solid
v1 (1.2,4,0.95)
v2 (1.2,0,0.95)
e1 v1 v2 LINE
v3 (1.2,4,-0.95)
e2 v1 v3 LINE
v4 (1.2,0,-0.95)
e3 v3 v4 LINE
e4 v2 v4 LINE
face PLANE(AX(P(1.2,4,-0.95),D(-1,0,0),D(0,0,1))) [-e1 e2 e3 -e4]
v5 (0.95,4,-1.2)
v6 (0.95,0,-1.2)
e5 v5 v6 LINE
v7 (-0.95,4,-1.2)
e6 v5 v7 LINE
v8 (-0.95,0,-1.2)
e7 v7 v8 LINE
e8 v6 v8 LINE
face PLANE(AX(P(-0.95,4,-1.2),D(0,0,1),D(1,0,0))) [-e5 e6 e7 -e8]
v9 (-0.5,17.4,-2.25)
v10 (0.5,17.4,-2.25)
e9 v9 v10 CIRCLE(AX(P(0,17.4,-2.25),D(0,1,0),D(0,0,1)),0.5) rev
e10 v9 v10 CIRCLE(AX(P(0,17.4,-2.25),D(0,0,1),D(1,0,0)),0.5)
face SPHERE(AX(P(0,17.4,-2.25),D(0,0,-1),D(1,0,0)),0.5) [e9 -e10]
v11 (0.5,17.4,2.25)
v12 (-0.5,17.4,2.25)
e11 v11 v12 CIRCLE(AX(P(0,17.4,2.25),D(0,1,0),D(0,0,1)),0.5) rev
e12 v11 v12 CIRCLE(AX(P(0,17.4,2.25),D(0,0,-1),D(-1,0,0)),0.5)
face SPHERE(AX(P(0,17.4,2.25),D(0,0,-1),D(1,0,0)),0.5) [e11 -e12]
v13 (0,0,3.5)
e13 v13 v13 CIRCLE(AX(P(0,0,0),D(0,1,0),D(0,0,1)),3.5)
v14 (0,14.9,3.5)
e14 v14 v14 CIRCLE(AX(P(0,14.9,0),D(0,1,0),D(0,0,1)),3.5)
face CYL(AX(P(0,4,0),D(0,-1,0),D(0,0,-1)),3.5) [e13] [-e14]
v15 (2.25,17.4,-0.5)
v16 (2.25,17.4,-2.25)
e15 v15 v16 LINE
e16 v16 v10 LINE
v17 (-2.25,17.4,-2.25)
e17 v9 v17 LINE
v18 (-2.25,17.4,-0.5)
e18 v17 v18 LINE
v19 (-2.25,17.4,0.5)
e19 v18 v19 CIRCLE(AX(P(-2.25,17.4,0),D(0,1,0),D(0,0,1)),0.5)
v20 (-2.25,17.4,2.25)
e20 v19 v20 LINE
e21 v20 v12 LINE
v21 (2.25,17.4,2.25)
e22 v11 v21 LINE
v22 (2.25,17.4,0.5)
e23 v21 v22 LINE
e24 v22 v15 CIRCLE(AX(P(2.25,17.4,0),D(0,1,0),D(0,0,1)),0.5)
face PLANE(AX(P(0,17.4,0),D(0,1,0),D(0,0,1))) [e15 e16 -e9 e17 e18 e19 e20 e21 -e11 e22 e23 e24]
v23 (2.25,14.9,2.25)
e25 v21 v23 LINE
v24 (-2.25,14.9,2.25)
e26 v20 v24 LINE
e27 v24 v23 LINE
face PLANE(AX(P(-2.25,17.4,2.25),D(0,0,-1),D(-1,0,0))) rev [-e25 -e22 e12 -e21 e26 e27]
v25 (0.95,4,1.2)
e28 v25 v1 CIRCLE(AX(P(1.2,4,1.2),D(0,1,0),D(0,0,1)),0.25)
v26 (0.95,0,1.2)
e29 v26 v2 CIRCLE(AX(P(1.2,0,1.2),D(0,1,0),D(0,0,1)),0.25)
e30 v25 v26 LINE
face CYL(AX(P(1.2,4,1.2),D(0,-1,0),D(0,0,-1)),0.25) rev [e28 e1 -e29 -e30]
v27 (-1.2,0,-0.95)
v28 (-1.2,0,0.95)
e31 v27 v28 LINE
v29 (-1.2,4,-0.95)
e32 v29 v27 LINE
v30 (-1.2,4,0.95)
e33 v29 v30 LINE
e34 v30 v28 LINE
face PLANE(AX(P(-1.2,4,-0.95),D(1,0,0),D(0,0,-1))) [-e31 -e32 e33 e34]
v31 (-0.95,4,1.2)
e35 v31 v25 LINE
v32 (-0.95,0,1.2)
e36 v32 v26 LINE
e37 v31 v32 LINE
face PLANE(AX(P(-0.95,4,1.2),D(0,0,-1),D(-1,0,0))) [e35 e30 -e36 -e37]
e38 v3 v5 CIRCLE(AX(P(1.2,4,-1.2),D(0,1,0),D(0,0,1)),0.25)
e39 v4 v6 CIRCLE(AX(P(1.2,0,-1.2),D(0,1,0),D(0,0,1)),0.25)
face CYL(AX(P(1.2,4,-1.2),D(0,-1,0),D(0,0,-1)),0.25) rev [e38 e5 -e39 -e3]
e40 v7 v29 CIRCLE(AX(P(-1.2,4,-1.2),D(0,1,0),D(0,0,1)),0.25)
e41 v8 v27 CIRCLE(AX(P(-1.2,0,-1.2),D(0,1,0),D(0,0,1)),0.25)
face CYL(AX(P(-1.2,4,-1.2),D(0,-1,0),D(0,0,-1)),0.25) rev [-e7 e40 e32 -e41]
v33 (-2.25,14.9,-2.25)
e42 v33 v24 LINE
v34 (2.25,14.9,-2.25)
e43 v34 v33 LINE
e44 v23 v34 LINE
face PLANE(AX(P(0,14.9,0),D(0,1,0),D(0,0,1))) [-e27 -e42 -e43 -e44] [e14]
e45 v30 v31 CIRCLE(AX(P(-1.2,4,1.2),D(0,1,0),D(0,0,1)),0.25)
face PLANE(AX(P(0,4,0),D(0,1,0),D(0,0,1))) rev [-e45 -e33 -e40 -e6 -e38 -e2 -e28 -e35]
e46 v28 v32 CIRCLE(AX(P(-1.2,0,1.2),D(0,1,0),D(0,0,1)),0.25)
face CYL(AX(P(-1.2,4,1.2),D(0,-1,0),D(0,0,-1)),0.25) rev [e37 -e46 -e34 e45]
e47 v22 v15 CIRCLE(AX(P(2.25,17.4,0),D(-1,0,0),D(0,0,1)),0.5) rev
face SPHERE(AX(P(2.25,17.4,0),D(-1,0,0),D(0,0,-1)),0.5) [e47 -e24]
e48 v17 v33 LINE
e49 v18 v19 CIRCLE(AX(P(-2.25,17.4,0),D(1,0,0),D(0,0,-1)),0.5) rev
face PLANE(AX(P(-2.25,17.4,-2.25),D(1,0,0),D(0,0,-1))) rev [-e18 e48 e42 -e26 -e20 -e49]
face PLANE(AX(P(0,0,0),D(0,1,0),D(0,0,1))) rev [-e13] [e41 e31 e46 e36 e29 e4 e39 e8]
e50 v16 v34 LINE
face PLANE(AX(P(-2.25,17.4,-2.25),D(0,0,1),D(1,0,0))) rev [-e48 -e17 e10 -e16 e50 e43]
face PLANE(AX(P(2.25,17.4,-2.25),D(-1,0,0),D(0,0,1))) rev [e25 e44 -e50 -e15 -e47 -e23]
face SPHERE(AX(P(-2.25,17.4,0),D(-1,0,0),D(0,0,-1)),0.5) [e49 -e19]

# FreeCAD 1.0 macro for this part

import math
import FreeCAD as App
import Part
import Sketcher
Q = App.Units.Quantity


def add_polygon(sketch, points):
    """Adds a closed chain of lines whose ends are joined by coincident constraints."""
    first, n = sketch.GeometryCount, len(points)
    for a, b in zip(points, points[1:] + points[:1]):
        sketch.addGeometry(Part.LineSegment(App.Vector(*a, 0), App.Vector(*b, 0)), False)
    for i in range(n):
        sketch.addConstraint(Sketcher.Constraint("Coincident", first + i, 2, first + (i + 1) % n, 1))

doc = App.newDocument("Part")
params = doc.addObject("Spreadsheet::Sheet", "Params")
for row, (alias, value) in enumerate([
    ("sketch1_diameter", "7 mm"),
    ("sketch1_radius", "0.25 mm"),
    ("sketch1_width", "1.9 mm"),
    ("pad1_length", "4 mm"),
    ("sketch2_diameter", "7 mm"),
    ("pad2_length", "10.9 mm"),
    ("sketch3_width", "4.5 mm"),
    ("pad3_length", "2.5 mm"),
    ("sketch4_radius", "0.5 mm"),
    ("revolution_angle", "360 deg"),
    ("sketch5_radius", "0.5 mm"),
    ("revolution2_angle", "360 deg"),
    ("sketch6_diameter", "6.5 mm"),
    ("pocket1_length", "2.5 mm"),
], start=1):
    params.set(f"A{row}", alias)
    params.set(f"B{row}", "=" + value)
    params.setAlias(f"B{row}", alias)

body = doc.addObject("PartDesign::Body", "Body")

sketch1 = doc.addObject("Sketcher::SketchObject", "Sketch")
body.addObject(sketch1)
sketch1.AttachmentSupport = (doc.XZ_Plane, [""])
sketch1.MapMode = "FlatFace"
sketch1.addGeometry(Part.Circle(App.Vector(0, 0, 0), App.Vector(0, 0, 1), 3.5), False)
sketch1.addGeometry(Part.ArcOfCircle(Part.Circle(App.Vector(-1.2, -1.2, 0), App.Vector(0, 0, 1), 0.25), math.radians(90), math.radians(360)), False)
sketch1.addGeometry(Part.LineSegment(App.Vector(-0.95, -1.2, 0), App.Vector(0.95, -1.2, 0)), False)
sketch1.addGeometry(Part.ArcOfCircle(Part.Circle(App.Vector(1.2, -1.2, 0), App.Vector(0, 0, 1), 0.25), math.radians(180), math.radians(450)), False)
sketch1.addGeometry(Part.LineSegment(App.Vector(1.2, -0.95, 0), App.Vector(1.2, 0.95, 0)), False)
sketch1.addGeometry(Part.ArcOfCircle(Part.Circle(App.Vector(1.2, 1.2, 0), App.Vector(0, 0, 1), 0.25), math.radians(-90), math.radians(180)), False)
sketch1.addGeometry(Part.LineSegment(App.Vector(0.95, 1.2, 0), App.Vector(-0.95, 1.2, 0)), False)
sketch1.addGeometry(Part.ArcOfCircle(Part.Circle(App.Vector(-1.2, 1.2, 0), App.Vector(0, 0, 1), 0.25), math.radians(0), math.radians(270)), False)
sketch1.addGeometry(Part.LineSegment(App.Vector(-1.2, 0.95, 0), App.Vector(-1.2, -0.95, 0)), False)
sketch1.addConstraint(Sketcher.Constraint("Coincident", 1, 2, 2, 1))
sketch1.addConstraint(Sketcher.Constraint("Coincident", 2, 2, 3, 1))
sketch1.addConstraint(Sketcher.Constraint("Coincident", 3, 2, 4, 1))
sketch1.addConstraint(Sketcher.Constraint("Coincident", 4, 2, 5, 1))
sketch1.addConstraint(Sketcher.Constraint("Coincident", 5, 2, 6, 1))
sketch1.addConstraint(Sketcher.Constraint("Coincident", 6, 2, 7, 1))
sketch1.addConstraint(Sketcher.Constraint("Coincident", 7, 2, 8, 1))
sketch1.addConstraint(Sketcher.Constraint("Coincident", 8, 2, 1, 1))
sketch1.addConstraint(Sketcher.Constraint("Horizontal", 2))
sketch1.addConstraint(Sketcher.Constraint("Vertical", 4))
sketch1.addConstraint(Sketcher.Constraint("Horizontal", 6))
sketch1.addConstraint(Sketcher.Constraint("Vertical", 8))
sketch1.addConstraint(Sketcher.Constraint("Coincident", 0, 3, -1, 1))
sketch1.addConstraint(Sketcher.Constraint("Equal", 1, 3))
sketch1.addConstraint(Sketcher.Constraint("Equal", 3, 5))
sketch1.addConstraint(Sketcher.Constraint("Equal", 5, 7))
sketch1.addConstraint(Sketcher.Constraint("Symmetric", 1, 3, 5, 3, -1, 1))
sketch1.addConstraint(Sketcher.Constraint("Symmetric", 3, 3, 7, 3, -1, 1))
sketch1.addConstraint(Sketcher.Constraint("Symmetric", 1, 3, 3, 3, -2))
sketch1.addConstraint(Sketcher.Constraint("Horizontal", 3, 3, 1, 2))
sketch1.addConstraint(Sketcher.Constraint("Horizontal", 7, 3, 5, 2))
sketch1.addConstraint(Sketcher.Constraint("Vertical", 5, 3, 3, 2))
sketch1.addConstraint(Sketcher.Constraint("Vertical", 1, 3, 7, 2))
sketch1.addConstraint(Sketcher.Constraint("Equal", 6, 4))
sketch1.addConstraint(Sketcher.Constraint("Diameter", 0, Q("7 mm")))
sketch1.addConstraint(Sketcher.Constraint("Radius", 1, Q("0.25 mm")))
sketch1.addConstraint(Sketcher.Constraint("DistanceX", 2, 1, 2, 2, Q("1.9 mm")))
sketch1.setExpression("Constraints[24]", "Params.sketch1_diameter")
sketch1.setExpression("Constraints[25]", "Params.sketch1_radius")
sketch1.setExpression("Constraints[26]", "Params.sketch1_width")
pad1 = doc.addObject("PartDesign::Pad", "Pad")
body.addObject(pad1)
pad1.Profile = sketch1
pad1.setExpression("Length", "Params.pad1_length")
pad1.Reversed = True

sketch2 = doc.addObject("Sketcher::SketchObject", "Sketch001")
body.addObject(sketch2)
sketch2.AttachmentSupport = (doc.XZ_Plane, [""])
sketch2.MapMode = "FlatFace"
sketch2.AttachmentOffset = App.Placement(App.Vector(0, 0, -4), App.Rotation())
sketch2.addGeometry(Part.Circle(App.Vector(0, 0, 0), App.Vector(0, 0, 1), 3.5), False)
sketch2.addConstraint(Sketcher.Constraint("Coincident", 0, 3, -1, 1))
sketch2.addConstraint(Sketcher.Constraint("Diameter", 0, Q("7 mm")))
sketch2.setExpression("Constraints[1]", "Params.sketch2_diameter")
pad2 = doc.addObject("PartDesign::Pad", "Pad001")
body.addObject(pad2)
pad2.Profile = sketch2
pad2.setExpression("Length", "Params.pad2_length")
pad2.Reversed = True

sketch3 = doc.addObject("Sketcher::SketchObject", "Sketch002")
body.addObject(sketch3)
sketch3.AttachmentSupport = (doc.XZ_Plane, [""])
sketch3.MapMode = "FlatFace"
sketch3.AttachmentOffset = App.Placement(App.Vector(0, 0, -14.9), App.Rotation())
add_polygon(sketch3, [(-2.2, -2.2), (-2.2, 2.2), (2.2, 2.2), (2.2, -2.2)])
sketch3.addConstraint(Sketcher.Constraint("Vertical", 0))
sketch3.addConstraint(Sketcher.Constraint("Horizontal", 1))
sketch3.addConstraint(Sketcher.Constraint("Vertical", 2))
sketch3.addConstraint(Sketcher.Constraint("Horizontal", 3))
sketch3.addConstraint(Sketcher.Constraint("Symmetric", 0, 2, 2, 2, -1, 1))
sketch3.addConstraint(Sketcher.Constraint("Equal", 3, 0))
sketch3.addConstraint(Sketcher.Constraint("DistanceX", 1, 1, 1, 2, Q("4.5 mm")))
sketch3.setExpression("Constraints[10]", "Params.sketch3_width")
pad3 = doc.addObject("PartDesign::Pad", "Pad002")
body.addObject(pad3)
pad3.Profile = sketch3
pad3.setExpression("Length", "Params.pad3_length")
pad3.Reversed = True

sketch4 = doc.addObject("Sketcher::SketchObject", "Sketch003")
body.addObject(sketch4)
sketch4.AttachmentSupport = (doc.XZ_Plane, [""])
sketch4.MapMode = "FlatFace"
sketch4.AttachmentOffset = App.Placement(App.Vector(0, 0, -17.4), App.Rotation())
sketch4.addGeometry(Part.LineSegment(App.Vector(0, -1.8, 0), App.Vector(0, -2.8, 0)), False)
sketch4.addGeometry(Part.ArcOfCircle(Part.Circle(App.Vector(0, -2.2, 0), App.Vector(0, 0, 1), 0.5), math.radians(90), math.radians(270)), False)
sketch4.addGeometry(Part.LineSegment(App.Vector(0, 2.8, 0), App.Vector(0, 1.8, 0)), False)
sketch4.addGeometry(Part.ArcOfCircle(Part.Circle(App.Vector(0, 2.2, 0), App.Vector(0, 0, 1), 0.5), math.radians(90), math.radians(270)), False)
sketch4.addConstraint(Sketcher.Constraint("Coincident", 0, 1, 1, 1))
sketch4.addConstraint(Sketcher.Constraint("Coincident", 1, 2, 0, 2))
sketch4.addConstraint(Sketcher.Constraint("Coincident", 2, 1, 3, 1))
sketch4.addConstraint(Sketcher.Constraint("Coincident", 3, 2, 2, 2))
sketch4.addConstraint(Sketcher.Constraint("Vertical", 0))
sketch4.addConstraint(Sketcher.Constraint("Vertical", 2))
sketch4.addConstraint(Sketcher.Constraint("Equal", 1, 3))
sketch4.addConstraint(Sketcher.Constraint("Symmetric", 1, 3, 3, 3, -1, 1))
sketch4.addConstraint(Sketcher.Constraint("PointOnObject", 1, 3, -2))
sketch4.addConstraint(Sketcher.Constraint("PointOnObject", 0, 1, -2))
sketch4.addConstraint(Sketcher.Constraint("PointOnObject", 2, 1, -2))
sketch4.addConstraint(Sketcher.Constraint("Radius", 1, Q("0.5 mm")))
sketch4.addConstraint(Sketcher.Constraint("DistanceY", 0, 1, 3, 3, Q("4 mm")))
sketch4.setExpression("Constraints[11]", "Params.sketch4_radius")
revolution = doc.addObject("PartDesign::Revolution", "Revolution")
body.addObject(revolution)
revolution.Profile = sketch4
revolution.ReferenceAxis = (sketch4, ["V_Axis"])
revolution.setExpression("Angle", "Params.revolution_angle")

sketch5 = doc.addObject("Sketcher::SketchObject", "Sketch004")
body.addObject(sketch5)
sketch5.AttachmentSupport = (doc.XZ_Plane, [""])
sketch5.MapMode = "FlatFace"
sketch5.AttachmentOffset = App.Placement(App.Vector(0, 0, -17.4), App.Rotation())
sketch5.addGeometry(Part.LineSegment(App.Vector(-2.8, 0, 0), App.Vector(-1.8, 0, 0)), False)
sketch5.addGeometry(Part.ArcOfCircle(Part.Circle(App.Vector(-2.2, 0, 0), App.Vector(0, 0, 1), 0.5), math.radians(180), math.radians(360)), False)
sketch5.addGeometry(Part.LineSegment(App.Vector(1.8, 0, 0), App.Vector(2.8, 0, 0)), False)
sketch5.addGeometry(Part.ArcOfCircle(Part.Circle(App.Vector(2.2, 0, 0), App.Vector(0, 0, 1), 0.5), math.radians(180), math.radians(360)), False)
sketch5.addConstraint(Sketcher.Constraint("Coincident", 0, 1, 1, 1))
sketch5.addConstraint(Sketcher.Constraint("Coincident", 1, 2, 0, 2))
sketch5.addConstraint(Sketcher.Constraint("Coincident", 2, 1, 3, 1))
sketch5.addConstraint(Sketcher.Constraint("Coincident", 3, 2, 2, 2))
sketch5.addConstraint(Sketcher.Constraint("Horizontal", 0))
sketch5.addConstraint(Sketcher.Constraint("Horizontal", 2))
sketch5.addConstraint(Sketcher.Constraint("Equal", 1, 3))
sketch5.addConstraint(Sketcher.Constraint("Symmetric", 1, 3, 3, 3, -1, 1))
sketch5.addConstraint(Sketcher.Constraint("PointOnObject", 1, 3, -1))
sketch5.addConstraint(Sketcher.Constraint("PointOnObject", 0, 1, -1))
sketch5.addConstraint(Sketcher.Constraint("PointOnObject", 2, 1, -1))
sketch5.addConstraint(Sketcher.Constraint("Radius", 1, Q("0.5 mm")))
sketch5.addConstraint(Sketcher.Constraint("DistanceX", 0, 1, 3, 3, Q("5 mm")))
sketch5.setExpression("Constraints[11]", "Params.sketch5_radius")
revolution2 = doc.addObject("PartDesign::Revolution", "Revolution001")
body.addObject(revolution2)
revolution2.Profile = sketch5
revolution2.ReferenceAxis = (sketch5, ["H_Axis"])
revolution2.setExpression("Angle", "Params.revolution2_angle")

sketch6 = doc.addObject("Sketcher::SketchObject", "Sketch005")
body.addObject(sketch6)
sketch6.AttachmentSupport = (doc.XZ_Plane, [""])
sketch6.MapMode = "FlatFace"
sketch6.AttachmentOffset = App.Placement(App.Vector(0, 0, -17.4), App.Rotation())
sketch6.addGeometry(Part.Circle(App.Vector(0, 0, 0), App.Vector(0, 0, 1), 3.2), False)
sketch6.addConstraint(Sketcher.Constraint("Coincident", 0, 3, -1, 1))
sketch6.addConstraint(Sketcher.Constraint("Diameter", 0, Q("6.5 mm")))
sketch6.setExpression("Constraints[1]", "Params.sketch6_diameter")
pocket1 = doc.addObject("PartDesign::Pocket", "Pocket")
body.addObject(pocket1)
pocket1.Profile = sketch6
pocket1.setExpression("Length", "Params.pocket1_length")

doc.recompute()
